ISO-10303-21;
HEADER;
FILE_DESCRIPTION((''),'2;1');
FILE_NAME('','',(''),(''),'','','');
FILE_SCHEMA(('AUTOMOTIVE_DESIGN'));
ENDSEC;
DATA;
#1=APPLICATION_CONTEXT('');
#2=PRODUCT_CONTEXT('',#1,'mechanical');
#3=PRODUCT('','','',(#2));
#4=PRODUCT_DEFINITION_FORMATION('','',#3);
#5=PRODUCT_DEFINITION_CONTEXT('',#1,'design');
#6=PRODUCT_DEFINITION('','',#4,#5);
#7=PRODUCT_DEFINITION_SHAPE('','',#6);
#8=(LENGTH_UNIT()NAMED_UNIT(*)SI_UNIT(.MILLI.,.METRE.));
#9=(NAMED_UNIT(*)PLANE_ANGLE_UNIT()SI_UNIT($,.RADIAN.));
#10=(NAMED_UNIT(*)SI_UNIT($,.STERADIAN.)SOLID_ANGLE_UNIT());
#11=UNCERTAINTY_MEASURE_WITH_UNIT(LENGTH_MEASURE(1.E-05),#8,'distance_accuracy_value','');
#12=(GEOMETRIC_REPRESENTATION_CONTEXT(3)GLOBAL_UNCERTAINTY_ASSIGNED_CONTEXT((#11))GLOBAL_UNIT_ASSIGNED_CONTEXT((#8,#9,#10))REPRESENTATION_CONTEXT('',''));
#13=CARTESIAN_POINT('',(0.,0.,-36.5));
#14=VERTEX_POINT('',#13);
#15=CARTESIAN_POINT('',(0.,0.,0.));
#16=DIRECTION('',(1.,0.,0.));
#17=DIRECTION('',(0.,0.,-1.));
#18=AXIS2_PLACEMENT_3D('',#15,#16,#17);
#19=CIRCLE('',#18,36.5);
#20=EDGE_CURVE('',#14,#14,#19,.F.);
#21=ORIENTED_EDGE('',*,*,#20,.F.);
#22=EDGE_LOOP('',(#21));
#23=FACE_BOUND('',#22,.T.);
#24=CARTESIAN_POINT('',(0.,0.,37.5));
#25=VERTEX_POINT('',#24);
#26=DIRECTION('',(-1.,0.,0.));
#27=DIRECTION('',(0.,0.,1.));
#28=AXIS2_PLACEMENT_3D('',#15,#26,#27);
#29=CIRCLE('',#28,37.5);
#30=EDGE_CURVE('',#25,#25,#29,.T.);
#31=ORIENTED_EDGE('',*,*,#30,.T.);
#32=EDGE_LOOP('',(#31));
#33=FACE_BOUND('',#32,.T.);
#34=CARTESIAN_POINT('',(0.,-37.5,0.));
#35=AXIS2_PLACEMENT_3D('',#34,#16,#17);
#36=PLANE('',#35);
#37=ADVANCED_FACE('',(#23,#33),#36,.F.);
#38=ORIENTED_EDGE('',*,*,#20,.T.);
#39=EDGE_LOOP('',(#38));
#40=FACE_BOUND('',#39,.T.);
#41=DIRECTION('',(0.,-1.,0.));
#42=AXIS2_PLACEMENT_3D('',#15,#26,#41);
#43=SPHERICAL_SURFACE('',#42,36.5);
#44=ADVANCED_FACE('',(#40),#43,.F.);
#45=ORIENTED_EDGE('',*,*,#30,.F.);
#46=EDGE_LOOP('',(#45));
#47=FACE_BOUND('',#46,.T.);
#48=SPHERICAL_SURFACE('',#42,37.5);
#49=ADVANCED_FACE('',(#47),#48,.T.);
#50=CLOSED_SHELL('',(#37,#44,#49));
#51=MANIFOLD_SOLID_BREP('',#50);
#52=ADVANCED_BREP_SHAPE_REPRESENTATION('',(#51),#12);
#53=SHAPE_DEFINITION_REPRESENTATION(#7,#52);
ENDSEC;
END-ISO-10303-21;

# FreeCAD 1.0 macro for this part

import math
import FreeCAD as App
import Part
import Sketcher
from FreeCAD import Vector


def faces_at(feature, points):
    """Names of the faces that lie closest to the given points."""
    faces = feature.Shape.Faces
    near = lambda p: min(range(len(faces)), key=lambda i: faces[i].distToShape(Part.Vertex(*p))[0])
    return sorted({f"Face{near(p) + 1}" for p in points})

doc = App.newDocument("Part")
body = doc.addObject("PartDesign::Body", "Body")

# Sketch on XY plane
sketch1 = body.newObject("Sketcher::SketchObject", "Sketch")
sketch1.AttachmentSupport = (doc.getObject("XY_Plane"), [""])
sketch1.MapMode = "FlatFace"
sketch1.addGeometry(Part.LineSegment(Vector(38, 0, 0), Vector(0, 0, 0)), False)
sketch1.addGeometry(Part.LineSegment(Vector(0, 0, 0), Vector(0, -38, 0)), False)
sketch1.addGeometry(Part.ArcOfCircle(Part.Circle(Vector(0, 0, 0), Vector(0, 0, 1), 38), math.radians(-90), math.radians(0)), False)
sketch1.addConstraint(Sketcher.Constraint("Coincident", 0, 2, 1, 1))
sketch1.addConstraint(Sketcher.Constraint("Coincident", 1, 2, 2, 1))
sketch1.addConstraint(Sketcher.Constraint("Coincident", 2, 2, 0, 1))
sketch1.addConstraint(Sketcher.Constraint("Horizontal", 0))
sketch1.addConstraint(Sketcher.Constraint("Vertical", 1))
sketch1.addConstraint(Sketcher.Constraint("Coincident", 2, 3, -1, 1))
sketch1.addConstraint(Sketcher.Constraint("Coincident", 0, 2, -1, 1))
sketch1.addConstraint(Sketcher.Constraint("Radius", 2, 37.5))
revolution = body.newObject("PartDesign::Revolution", "Revolution")
revolution.Profile = sketch1
revolution.ReferenceAxis = (sketch1, ["H_Axis"])
revolution.Angle = 360
doc.recompute()

thickness = body.newObject("PartDesign::Thickness", "Thickness")
thickness.Base = (revolution, faces_at(revolution, [(0, 0, 0)]))
thickness.Value = 1
thickness.Reversed = True
thickness.Join = "Intersection"

doc.recompute()
